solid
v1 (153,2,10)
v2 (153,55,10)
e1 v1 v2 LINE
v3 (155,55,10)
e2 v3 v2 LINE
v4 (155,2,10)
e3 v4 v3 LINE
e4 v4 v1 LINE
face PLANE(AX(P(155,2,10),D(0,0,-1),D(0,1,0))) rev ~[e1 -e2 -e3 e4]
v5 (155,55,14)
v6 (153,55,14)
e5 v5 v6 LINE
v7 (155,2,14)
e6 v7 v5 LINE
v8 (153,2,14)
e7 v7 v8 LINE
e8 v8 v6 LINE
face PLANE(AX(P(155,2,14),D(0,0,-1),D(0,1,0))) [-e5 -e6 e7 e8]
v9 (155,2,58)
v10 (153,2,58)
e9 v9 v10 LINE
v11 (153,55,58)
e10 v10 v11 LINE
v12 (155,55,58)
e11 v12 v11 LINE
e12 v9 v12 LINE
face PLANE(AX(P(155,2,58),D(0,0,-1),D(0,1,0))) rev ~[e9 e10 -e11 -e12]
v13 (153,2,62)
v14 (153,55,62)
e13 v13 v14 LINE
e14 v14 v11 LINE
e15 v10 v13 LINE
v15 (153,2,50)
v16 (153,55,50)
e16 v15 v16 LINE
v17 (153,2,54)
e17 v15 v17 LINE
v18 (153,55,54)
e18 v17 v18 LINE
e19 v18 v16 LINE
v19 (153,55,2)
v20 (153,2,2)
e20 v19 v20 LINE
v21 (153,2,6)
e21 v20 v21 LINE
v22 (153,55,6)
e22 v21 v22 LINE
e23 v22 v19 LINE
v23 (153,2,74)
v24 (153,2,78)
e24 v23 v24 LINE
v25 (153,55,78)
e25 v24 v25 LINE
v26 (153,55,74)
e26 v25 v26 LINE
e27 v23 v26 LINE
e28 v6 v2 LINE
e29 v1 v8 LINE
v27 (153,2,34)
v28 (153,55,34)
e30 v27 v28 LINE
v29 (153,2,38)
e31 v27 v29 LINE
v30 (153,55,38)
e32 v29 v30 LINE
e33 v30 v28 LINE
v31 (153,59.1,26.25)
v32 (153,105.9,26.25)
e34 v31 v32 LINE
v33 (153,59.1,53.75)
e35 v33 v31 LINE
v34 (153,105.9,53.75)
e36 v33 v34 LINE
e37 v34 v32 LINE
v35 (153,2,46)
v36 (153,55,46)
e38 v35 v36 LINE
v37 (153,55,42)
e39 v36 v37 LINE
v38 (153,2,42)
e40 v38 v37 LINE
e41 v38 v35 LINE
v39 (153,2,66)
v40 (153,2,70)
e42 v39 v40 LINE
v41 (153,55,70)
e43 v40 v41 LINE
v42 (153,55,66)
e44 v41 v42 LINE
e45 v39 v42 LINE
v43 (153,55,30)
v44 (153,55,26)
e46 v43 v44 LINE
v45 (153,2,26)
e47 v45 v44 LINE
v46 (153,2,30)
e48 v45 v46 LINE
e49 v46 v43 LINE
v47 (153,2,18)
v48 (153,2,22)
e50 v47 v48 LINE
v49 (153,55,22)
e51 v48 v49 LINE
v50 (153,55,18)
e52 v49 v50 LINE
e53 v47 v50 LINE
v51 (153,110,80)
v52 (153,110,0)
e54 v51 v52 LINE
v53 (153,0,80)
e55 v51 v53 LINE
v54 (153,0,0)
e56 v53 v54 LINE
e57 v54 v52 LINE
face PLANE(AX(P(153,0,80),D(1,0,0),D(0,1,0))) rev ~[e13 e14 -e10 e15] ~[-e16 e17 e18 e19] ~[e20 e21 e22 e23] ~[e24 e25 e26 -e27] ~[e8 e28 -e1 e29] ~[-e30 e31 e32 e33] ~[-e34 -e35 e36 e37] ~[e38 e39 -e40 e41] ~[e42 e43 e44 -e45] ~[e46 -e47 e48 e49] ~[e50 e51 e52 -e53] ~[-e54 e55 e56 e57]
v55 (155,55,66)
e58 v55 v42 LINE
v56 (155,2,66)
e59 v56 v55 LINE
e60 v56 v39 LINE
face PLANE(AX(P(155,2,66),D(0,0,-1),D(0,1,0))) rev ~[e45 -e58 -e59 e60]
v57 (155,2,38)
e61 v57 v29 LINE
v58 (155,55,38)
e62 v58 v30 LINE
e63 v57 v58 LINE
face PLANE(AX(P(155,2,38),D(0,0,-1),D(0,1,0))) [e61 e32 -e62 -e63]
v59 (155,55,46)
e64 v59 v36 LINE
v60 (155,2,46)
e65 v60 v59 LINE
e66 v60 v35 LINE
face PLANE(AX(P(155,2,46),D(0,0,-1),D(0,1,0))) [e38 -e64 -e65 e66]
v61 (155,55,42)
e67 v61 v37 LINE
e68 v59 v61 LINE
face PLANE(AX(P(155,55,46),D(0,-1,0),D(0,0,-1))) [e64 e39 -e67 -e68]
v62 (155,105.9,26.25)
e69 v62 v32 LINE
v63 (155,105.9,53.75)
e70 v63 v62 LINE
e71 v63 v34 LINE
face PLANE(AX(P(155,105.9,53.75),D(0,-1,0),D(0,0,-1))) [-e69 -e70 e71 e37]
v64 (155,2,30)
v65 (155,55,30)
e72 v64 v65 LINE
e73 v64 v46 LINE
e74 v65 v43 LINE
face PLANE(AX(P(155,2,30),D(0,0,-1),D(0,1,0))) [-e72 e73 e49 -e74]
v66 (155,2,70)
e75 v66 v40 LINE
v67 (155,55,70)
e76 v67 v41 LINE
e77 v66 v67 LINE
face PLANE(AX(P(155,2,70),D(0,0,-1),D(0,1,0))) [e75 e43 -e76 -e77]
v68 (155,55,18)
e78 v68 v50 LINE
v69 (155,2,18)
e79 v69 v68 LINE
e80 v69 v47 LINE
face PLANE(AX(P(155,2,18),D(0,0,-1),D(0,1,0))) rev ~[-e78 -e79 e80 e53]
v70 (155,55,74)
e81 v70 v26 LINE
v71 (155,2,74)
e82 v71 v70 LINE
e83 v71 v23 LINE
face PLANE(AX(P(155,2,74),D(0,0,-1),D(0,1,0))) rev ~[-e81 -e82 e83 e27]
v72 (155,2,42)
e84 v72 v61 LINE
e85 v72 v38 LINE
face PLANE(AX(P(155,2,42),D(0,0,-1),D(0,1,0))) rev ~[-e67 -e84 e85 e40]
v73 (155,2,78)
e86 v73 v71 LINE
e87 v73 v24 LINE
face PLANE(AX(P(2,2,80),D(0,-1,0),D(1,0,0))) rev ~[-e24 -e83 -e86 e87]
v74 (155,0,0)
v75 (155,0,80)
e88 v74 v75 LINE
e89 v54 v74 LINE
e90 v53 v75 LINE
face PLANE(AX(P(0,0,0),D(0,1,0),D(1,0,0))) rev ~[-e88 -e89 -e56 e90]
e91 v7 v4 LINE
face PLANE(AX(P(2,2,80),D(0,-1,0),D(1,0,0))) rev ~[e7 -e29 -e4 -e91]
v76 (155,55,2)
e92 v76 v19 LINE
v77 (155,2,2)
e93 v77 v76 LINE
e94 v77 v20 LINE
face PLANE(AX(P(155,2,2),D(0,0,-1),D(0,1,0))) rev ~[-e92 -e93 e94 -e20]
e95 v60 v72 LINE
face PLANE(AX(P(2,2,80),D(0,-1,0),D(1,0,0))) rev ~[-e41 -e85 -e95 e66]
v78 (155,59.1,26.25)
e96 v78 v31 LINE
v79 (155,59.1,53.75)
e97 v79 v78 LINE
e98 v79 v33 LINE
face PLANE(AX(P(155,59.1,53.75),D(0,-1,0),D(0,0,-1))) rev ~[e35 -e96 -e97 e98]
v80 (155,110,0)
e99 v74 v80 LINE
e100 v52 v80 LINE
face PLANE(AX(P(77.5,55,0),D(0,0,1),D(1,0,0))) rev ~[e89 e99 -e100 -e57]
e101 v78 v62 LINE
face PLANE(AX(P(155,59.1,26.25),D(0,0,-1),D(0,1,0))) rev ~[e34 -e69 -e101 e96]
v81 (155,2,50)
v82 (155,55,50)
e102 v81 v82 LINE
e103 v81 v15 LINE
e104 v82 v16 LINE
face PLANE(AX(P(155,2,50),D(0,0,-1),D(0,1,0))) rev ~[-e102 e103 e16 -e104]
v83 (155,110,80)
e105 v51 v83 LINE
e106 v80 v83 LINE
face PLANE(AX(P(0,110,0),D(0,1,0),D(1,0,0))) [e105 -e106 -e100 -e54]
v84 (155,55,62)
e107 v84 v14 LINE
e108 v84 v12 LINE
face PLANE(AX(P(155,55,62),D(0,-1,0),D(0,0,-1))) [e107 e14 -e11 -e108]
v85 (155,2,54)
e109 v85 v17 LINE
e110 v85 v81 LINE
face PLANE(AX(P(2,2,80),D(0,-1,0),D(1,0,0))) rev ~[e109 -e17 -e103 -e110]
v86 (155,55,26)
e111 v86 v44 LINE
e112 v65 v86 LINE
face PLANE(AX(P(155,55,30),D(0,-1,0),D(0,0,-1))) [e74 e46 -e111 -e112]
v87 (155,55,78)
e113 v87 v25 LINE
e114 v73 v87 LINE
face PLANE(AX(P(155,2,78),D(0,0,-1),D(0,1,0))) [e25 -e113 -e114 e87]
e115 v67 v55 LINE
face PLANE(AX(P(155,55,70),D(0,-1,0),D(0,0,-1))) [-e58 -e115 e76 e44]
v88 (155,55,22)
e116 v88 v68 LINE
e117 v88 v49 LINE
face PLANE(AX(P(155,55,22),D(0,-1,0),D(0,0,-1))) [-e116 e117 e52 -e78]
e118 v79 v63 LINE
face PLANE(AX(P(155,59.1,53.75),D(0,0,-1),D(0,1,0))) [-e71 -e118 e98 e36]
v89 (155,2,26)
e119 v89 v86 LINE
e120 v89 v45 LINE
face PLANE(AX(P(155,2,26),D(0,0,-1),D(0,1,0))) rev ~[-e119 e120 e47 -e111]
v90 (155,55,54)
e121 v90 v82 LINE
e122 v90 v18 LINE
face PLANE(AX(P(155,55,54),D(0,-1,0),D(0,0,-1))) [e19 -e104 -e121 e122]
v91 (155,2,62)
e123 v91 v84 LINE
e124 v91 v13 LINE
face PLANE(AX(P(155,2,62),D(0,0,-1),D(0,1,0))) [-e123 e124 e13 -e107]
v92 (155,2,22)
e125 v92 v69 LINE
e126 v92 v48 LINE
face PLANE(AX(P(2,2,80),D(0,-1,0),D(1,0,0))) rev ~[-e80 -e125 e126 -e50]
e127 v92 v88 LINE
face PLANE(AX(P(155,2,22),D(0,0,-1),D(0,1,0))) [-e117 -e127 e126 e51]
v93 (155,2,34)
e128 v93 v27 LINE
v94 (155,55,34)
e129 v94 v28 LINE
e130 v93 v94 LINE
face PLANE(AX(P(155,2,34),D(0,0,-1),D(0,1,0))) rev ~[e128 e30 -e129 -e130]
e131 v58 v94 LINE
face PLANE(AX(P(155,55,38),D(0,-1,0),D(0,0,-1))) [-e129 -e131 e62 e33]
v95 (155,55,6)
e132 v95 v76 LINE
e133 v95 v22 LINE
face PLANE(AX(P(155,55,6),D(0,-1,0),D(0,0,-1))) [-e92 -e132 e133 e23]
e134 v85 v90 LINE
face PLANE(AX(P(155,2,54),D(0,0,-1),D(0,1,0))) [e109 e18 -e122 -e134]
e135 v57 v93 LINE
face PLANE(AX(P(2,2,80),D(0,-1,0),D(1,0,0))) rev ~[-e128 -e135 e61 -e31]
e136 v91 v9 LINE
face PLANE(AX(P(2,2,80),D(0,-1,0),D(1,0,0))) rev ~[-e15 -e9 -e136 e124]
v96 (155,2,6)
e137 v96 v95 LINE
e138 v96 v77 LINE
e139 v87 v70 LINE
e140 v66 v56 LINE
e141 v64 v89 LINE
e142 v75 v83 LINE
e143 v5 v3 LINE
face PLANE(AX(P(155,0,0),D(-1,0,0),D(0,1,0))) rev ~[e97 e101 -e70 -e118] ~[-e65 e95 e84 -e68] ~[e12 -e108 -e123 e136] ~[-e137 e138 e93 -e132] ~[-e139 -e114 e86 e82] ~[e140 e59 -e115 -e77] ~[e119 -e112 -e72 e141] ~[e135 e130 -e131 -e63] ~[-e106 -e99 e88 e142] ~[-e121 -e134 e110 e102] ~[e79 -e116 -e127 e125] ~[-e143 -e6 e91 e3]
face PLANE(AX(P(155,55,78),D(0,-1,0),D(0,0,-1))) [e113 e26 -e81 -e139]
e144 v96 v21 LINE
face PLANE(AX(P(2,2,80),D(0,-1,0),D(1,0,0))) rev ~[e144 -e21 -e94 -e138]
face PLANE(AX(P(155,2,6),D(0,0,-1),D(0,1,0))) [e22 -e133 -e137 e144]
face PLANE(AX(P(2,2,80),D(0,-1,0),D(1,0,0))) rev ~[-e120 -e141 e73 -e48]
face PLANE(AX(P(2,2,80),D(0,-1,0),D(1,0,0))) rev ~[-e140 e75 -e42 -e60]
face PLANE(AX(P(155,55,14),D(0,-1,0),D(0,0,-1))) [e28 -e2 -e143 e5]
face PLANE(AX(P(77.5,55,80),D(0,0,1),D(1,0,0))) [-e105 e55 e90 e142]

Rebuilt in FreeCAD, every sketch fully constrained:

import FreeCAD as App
import Part
import Sketcher
from FreeCAD import Vector
Q = App.Units.Quantity


def add_polygon(sketch, points):
    """Adds a closed chain of lines whose ends are joined by coincident constraints."""
    first, n = sketch.GeometryCount, len(points)
    for a, b in zip(points, points[1:] + points[:1]):
        sketch.addGeometry(Part.LineSegment(App.Vector(*a, 0), App.Vector(*b, 0)), False)
    for i in range(n):
        sketch.addConstraint(Sketcher.Constraint("Coincident", first + i, 2, first + (i + 1) % n, 1))

doc = App.newDocument("Part")
body = doc.addObject("PartDesign::Body", "Body")

sketch1 = body.newObject("Sketcher::SketchObject", "Sketch")
sketch1.AttachmentSupport = (doc.getObject("XY_Plane"), [""])
sketch1.MapMode = "FlatFace"
add_polygon(sketch1, [(0, 110), (0, 0), (155, 0), (155, 110)])
sketch1.addConstraint([
    Sketcher.Constraint("Vertical", 0),
    Sketcher.Constraint("Horizontal", 1),
    Sketcher.Constraint("Vertical", 2),
    Sketcher.Constraint("Horizontal", 3),
    Sketcher.Constraint("Coincident", 0, 2, -1, 1),
    Sketcher.Constraint("DistanceX", 1, 1, 1, 2, Q("155 mm")),
    Sketcher.Constraint("DistanceY", 0, 2, 0, 1, Q("110 mm")),
])
pad1 = body.newObject("PartDesign::Pad", "Pad")
pad1.Profile = sketch1
pad1.Length = 80

sketch2 = body.newObject("Sketcher::SketchObject", "Sketch001")
sketch2.AttachmentSupport = (doc.getObject("XY_Plane"), [""])
sketch2.MapMode = "FlatFace"
sketch2.AttachmentOffset = App.Placement(Vector(0, 0, 80), App.Rotation())
add_polygon(sketch2, [(2, 108), (2, 2), (153, 2), (153, 108)])
sketch2.addConstraint([
    Sketcher.Constraint("Vertical", 0),
    Sketcher.Constraint("Horizontal", 1),
    Sketcher.Constraint("Vertical", 2),
    Sketcher.Constraint("Horizontal", 3),
    Sketcher.Constraint("DistanceX", 1, 1, 1, 2, Q("151 mm")),
    Sketcher.Constraint("DistanceY", 0, 2, 0, 1, Q("106 mm")),
    Sketcher.Constraint("DistanceX", -1, 1, 0, 2, Q("2 mm")),
    Sketcher.Constraint("DistanceY", -1, 1, 0, 2, Q("2 mm")),
])
pocket1 = body.newObject("PartDesign::Pocket", "Pocket")
pocket1.Profile = sketch2
pocket1.Length = 78

sketch3 = body.newObject("Sketcher::SketchObject", "Sketch002")
sketch3.AttachmentSupport = (doc.getObject("XY_Plane"), [""])
sketch3.MapMode = "FlatFace"
sketch3.AttachmentOffset = App.Placement(Vector(0, 0, 2), App.Rotation())
sketch3.addGeometry([
    Part.Circle(Vector(145, 100.5, 0), Vector(0, 0, 1), 2.5),
    Part.Circle(Vector(145, 9.5, 0), Vector(0, 0, 1), 2.5),
    Part.Circle(Vector(10, 9.5, 0), Vector(0, 0, 1), 2.5),
    Part.Circle(Vector(10, 100.5, 0), Vector(0, 0, 1), 2.5),
], False)
sketch3.addConstraint([
    Sketcher.Constraint("Equal", 0, 1),
    Sketcher.Constraint("Equal", 1, 2),
    Sketcher.Constraint("Equal", 2, 3),
    Sketcher.Constraint("Horizontal", 1, 3, 2, 3),
    Sketcher.Constraint("Horizontal", 0, 3, 3, 3),
    Sketcher.Constraint("Vertical", 0, 3, 1, 3),
    Sketcher.Constraint("Vertical", 2, 3, 3, 3),
    Sketcher.Constraint("Diameter", 0, Q("5 mm")),
    Sketcher.Constraint("DistanceX", -1, 1, 0, 3, Q("145 mm")),
    Sketcher.Constraint("DistanceX", -1, 1, 2, 3, Q("10 mm")),
    Sketcher.Constraint("DistanceY", 1, 3, 0, 3, Q("91 mm")),
    Sketcher.Constraint("DistanceY", -1, 1, 0, 3, Q("100.5 mm")),
])
pocket2 = body.newObject("PartDesign::Pocket", "Pocket001")
pocket2.Profile = sketch3
pocket2.Length = 2

sketch4 = body.newObject("Sketcher::SketchObject", "Sketch003")
sketch4.AttachmentSupport = (doc.getObject("XZ_Plane"), [""])
sketch4.MapMode = "FlatFace"
sketch4.AttachmentOffset = App.Placement(Vector(0, 0, -110), App.Rotation())
sketch4.addGeometry([
    Part.Circle(Vector(44.48, 20.144504, 0), Vector(0, 0, 1), 1.6),
    Part.Circle(Vector(95.28, 17.14, 0), Vector(0, 0, 1), 1.6),
    Part.Circle(Vector(95.28, 62.86, 0), Vector(0, 0, 1), 1.6),
    Part.Circle(Vector(44.48, 47.62, 0), Vector(0, 0, 1), 1.6),
], False)
sketch4.addConstraint([
    Sketcher.Constraint("Equal", 0, 1),
    Sketcher.Constraint("Equal", 1, 2),
    Sketcher.Constraint("Equal", 2, 3),
    Sketcher.Constraint("Vertical", 1, 3, 2, 3),
    Sketcher.Constraint("Vertical", 0, 3, 3, 3),
    Sketcher.Constraint("Diameter", 0, Q("3.2 mm")),
    Sketcher.Constraint("DistanceX", 0, 3, 1, 3, Q("50.8 mm")),
    Sketcher.Constraint("DistanceX", -1, 1, 0, 3, Q("44.48 mm")),
    Sketcher.Constraint("DistanceY", -1, 1, 1, 3, Q("17.14 mm")),
    Sketcher.Constraint("DistanceY", -1, 1, 2, 3, Q("62.86 mm")),
    Sketcher.Constraint("DistanceY", -1, 1, 3, 3, Q("47.62 mm")),
    Sketcher.Constraint("DistanceY", -1, 1, 0, 3, Q("20.144504 mm")),
])
pocket3 = body.newObject("PartDesign::Pocket", "Pocket002")
pocket3.Profile = sketch4
pocket3.Length = 2
pocket3.Reversed = True

sketch5 = body.newObject("Sketcher::SketchObject", "Sketch004")
sketch5.AttachmentSupport = (doc.getObject("YZ_Plane"), [""])
sketch5.MapMode = "FlatFace"
sketch5.AttachmentOffset = App.Placement(Vector(0, 0, 155), App.Rotation())
add_polygon(sketch5, [(105.9, 53.75), (59.1, 53.75), (59.1, 26.25), (105.9, 26.25)])
sketch5.addConstraint([
    Sketcher.Constraint("Horizontal", 0),
    Sketcher.Constraint("Vertical", 1),
    Sketcher.Constraint("Horizontal", 2),
    Sketcher.Constraint("Vertical", 3),
    Sketcher.Constraint("DistanceX", 0, 2, 0, 1, Q("46.8 mm")),
    Sketcher.Constraint("DistanceY", 1, 2, 1, 1, Q("27.5 mm")),
    Sketcher.Constraint("DistanceX", -1, 1, 0, 2, Q("59.1 mm")),
    Sketcher.Constraint("DistanceY", -1, 1, 0, 2, Q("53.75 mm")),
])
pocket4 = body.newObject("PartDesign::Pocket", "Pocket003")
pocket4.Profile = sketch5
pocket4.Length = 2

sketch6 = body.newObject("Sketcher::SketchObject", "Sketch005")
sketch6.AttachmentSupport = (doc.getObject("YZ_Plane"), [""])
sketch6.MapMode = "FlatFace"
sketch6.AttachmentOffset = App.Placement(Vector(0, 0, 155), App.Rotation())
add_polygon(sketch6, [(55, 70), (2, 70), (2, 66), (55, 66)])
add_polygon(sketch6, [(55, 78), (2, 78), (2, 74), (55, 74)])
add_polygon(sketch6, [(55, 62), (2, 62), (2, 58), (55, 58)])
add_polygon(sketch6, [(55, 54), (2, 54), (2, 50), (55, 50)])
add_polygon(sketch6, [(55, 46), (2, 46), (2, 42), (55, 42)])
add_polygon(sketch6, [(55, 38), (2, 38), (2, 34), (55, 34)])
add_polygon(sketch6, [(55, 30), (2, 30), (2, 26), (55, 26)])
add_polygon(sketch6, [(55, 22), (2, 22), (2, 18), (55, 18)])
add_polygon(sketch6, [(55, 14), (2, 14), (2, 10), (55, 10)])
add_polygon(sketch6, [(55, 6), (2, 6), (2, 2), (55, 2)])
sketch6.addConstraint([
    Sketcher.Constraint("Horizontal", 0),
    Sketcher.Constraint("Vertical", 1),
    Sketcher.Constraint("Horizontal", 2),
    Sketcher.Constraint("Vertical", 3),
    Sketcher.Constraint("Horizontal", 4),
    Sketcher.Constraint("Vertical", 5),
    Sketcher.Constraint("Horizontal", 6),
    Sketcher.Constraint("Vertical", 7),
    Sketcher.Constraint("Horizontal", 8),
    Sketcher.Constraint("Vertical", 9),
    Sketcher.Constraint("Horizontal", 10),
    Sketcher.Constraint("Vertical", 11),
    Sketcher.Constraint("Horizontal", 12),
    Sketcher.Constraint("Vertical", 13),
    Sketcher.Constraint("Horizontal", 14),
    Sketcher.Constraint("Vertical", 15),
    Sketcher.Constraint("Horizontal", 16),
    Sketcher.Constraint("Vertical", 17),
    Sketcher.Constraint("Horizontal", 18),
    Sketcher.Constraint("Vertical", 19),
    Sketcher.Constraint("Horizontal", 20),
    Sketcher.Constraint("Vertical", 21),
    Sketcher.Constraint("Horizontal", 22),
    Sketcher.Constraint("Vertical", 23),
    Sketcher.Constraint("Horizontal", 24),
    Sketcher.Constraint("Vertical", 25),
    Sketcher.Constraint("Horizontal", 26),
    Sketcher.Constraint("Vertical", 27),
    Sketcher.Constraint("Horizontal", 28),
    Sketcher.Constraint("Vertical", 29),
    Sketcher.Constraint("Horizontal", 30),
    Sketcher.Constraint("Vertical", 31),
    Sketcher.Constraint("Horizontal", 32),
    Sketcher.Constraint("Vertical", 33),
    Sketcher.Constraint("Horizontal", 34),
    Sketcher.Constraint("Vertical", 35),
    Sketcher.Constraint("Horizontal", 36),
    Sketcher.Constraint("Vertical", 37),
    Sketcher.Constraint("Horizontal", 38),
    Sketcher.Constraint("Vertical", 39),
    Sketcher.Constraint("Vertical", 1, 2, 4, 2),
    Sketcher.Constraint("Vertical", 3, 2, 6, 2),
    Sketcher.Constraint("Vertical", 5, 2, 8, 2),
    Sketcher.Constraint("Vertical", 7, 2, 10, 2),
    Sketcher.Constraint("Vertical", 9, 2, 12, 2),
    Sketcher.Constraint("Vertical", 11, 2, 14, 2),
    Sketcher.Constraint("Vertical", 13, 2, 16, 2),
    Sketcher.Constraint("Vertical", 15, 2, 18, 2),
    Sketcher.Constraint("Vertical", 17, 2, 20, 2),
    Sketcher.Constraint("Vertical", 19, 2, 22, 2),
    Sketcher.Constraint("Vertical", 21, 2, 24, 2),
    Sketcher.Constraint("Vertical", 23, 2, 26, 2),
    Sketcher.Constraint("Vertical", 25, 2, 28, 2),
    Sketcher.Constraint("Vertical", 27, 2, 30, 2),
    Sketcher.Constraint("Vertical", 29, 2, 32, 2),
    Sketcher.Constraint("Vertical", 31, 2, 34, 2),
    Sketcher.Constraint("Vertical", 33, 2, 36, 2),
    Sketcher.Constraint("Vertical", 35, 2, 38, 2),
    Sketcher.Constraint("Equal", 3, 5),
    Sketcher.Constraint("Equal", 7, 9),
    Sketcher.Constraint("Equal", 11, 13),
    Sketcher.Constraint("Equal", 15, 17),
    Sketcher.Constraint("Equal", 19, 21),
    Sketcher.Constraint("Equal", 23, 25),
    Sketcher.Constraint("Equal", 27, 29),
    Sketcher.Constraint("Equal", 31, 33),
    Sketcher.Constraint("Equal", 35, 37),
    Sketcher.Constraint("DistanceX", 0, 2, 0, 1, Q("53 mm")),
    Sketcher.Constraint("DistanceY", 1, 2, 1, 1, Q("4 mm")),
    Sketcher.Constraint("DistanceX", -1, 1, 0, 2, Q("2 mm")),
    Sketcher.Constraint("DistanceY", -1, 1, 0, 2, Q("70 mm")),
    Sketcher.Constraint("DistanceY", -1, 1, 4, 2, Q("78 mm")),
    Sketcher.Constraint("DistanceY", -1, 1, 8, 2, Q("62 mm")),
    Sketcher.Constraint("DistanceY", -1, 1, 12, 2, Q("54 mm")),
    Sketcher.Constraint("DistanceY", -1, 1, 16, 2, Q("46 mm")),
    Sketcher.Constraint("DistanceY", -1, 1, 20, 2, Q("38 mm")),
    Sketcher.Constraint("DistanceY", -1, 1, 24, 2, Q("30 mm")),
    Sketcher.Constraint("DistanceY", -1, 1, 28, 2, Q("22 mm")),
    Sketcher.Constraint("DistanceY", -1, 1, 32, 2, Q("14 mm")),
    Sketcher.Constraint("DistanceY", -1, 1, 36, 2, Q("6 mm")),
])
pocket5 = body.newObject("PartDesign::Pocket", "Pocket004")
pocket5.Profile = sketch6
pocket5.Length = 2

sketch7 = body.newObject("Sketcher::SketchObject", "Sketch006")
sketch7.AttachmentSupport = (doc.getObject("XZ_Plane"), [""])
sketch7.MapMode = "FlatFace"
sketch7.AttachmentOffset = App.Placement(Vector(0, 0, -110), App.Rotation())
add_polygon(sketch7, [(113, 12), (113, 26), (127, 26), (127, 12)])
sketch7.addConstraint([
    Sketcher.Constraint("Vertical", 0),
    Sketcher.Constraint("Horizontal", 1),
    Sketcher.Constraint("Vertical", 2),
    Sketcher.Constraint("Horizontal", 3),
    Sketcher.Constraint("Equal", 3, 0),
    Sketcher.Constraint("DistanceX", 1, 1, 1, 2, Q("14 mm")),
    Sketcher.Constraint("DistanceX", -1, 1, 0, 2, Q("113 mm")),
    Sketcher.Constraint("DistanceY", -1, 1, 0, 2, Q("26 mm")),
])
pocket6 = body.newObject("PartDesign::Pocket", "Pocket005")
pocket6.Profile = sketch7
pocket6.Length = 2
pocket6.Reversed = True

sketch8 = body.newObject("Sketcher::SketchObject", "Sketch007")
sketch8.AttachmentSupport = (doc.getObject("YZ_Plane"), [""])
sketch8.MapMode = "FlatFace"
add_polygon(sketch8, [(90.6, 45.4), (19.4, 45.4), (19.4, 70.6), (90.6, 70.6)])
sketch8.addGeometry(Part.Circle(Vector(92.5, 42.5, 0), Vector(0, 0, 1), 1.25), False)
sketch8.addGeometry(Part.Circle(Vector(92.5, 73.5, 0), Vector(0, 0, 1), 1.25), False)
sketch8.addGeometry(Part.Circle(Vector(17.5, 42.5, 0), Vector(0, 0, 1), 1.25), False)
sketch8.addGeometry(Part.Circle(Vector(17.5, 73.5, 0), Vector(0, 0, 1), 1.25), False)
sketch8.addConstraint([
    Sketcher.Constraint("Horizontal", 0),
    Sketcher.Constraint("Vertical", 1),
    Sketcher.Constraint("Horizontal", 2),
    Sketcher.Constraint("Vertical", 3),
    Sketcher.Constraint("Equal", 4, 5),
    Sketcher.Constraint("Equal", 5, 6),
    Sketcher.Constraint("Equal", 6, 7),
    Sketcher.Constraint("Horizontal", 4, 3, 6, 3),
    Sketcher.Constraint("Horizontal", 5, 3, 7, 3),
    Sketcher.Constraint("Vertical", 4, 3, 5, 3),
    Sketcher.Constraint("Vertical", 6, 3, 7, 3),
    Sketcher.Constraint("Diameter", 4, Q("2.5 mm")),
    Sketcher.Constraint("DistanceX", 0, 2, 0, 1, Q("71.2 mm")),
    Sketcher.Constraint("DistanceY", 1, 1, 1, 2, Q("25.2 mm")),
    Sketcher.Constraint("DistanceY", 4, 3, 5, 3, Q("31 mm")),
    Sketcher.Constraint("DistanceX", 6, 3, 4, 3, Q("75 mm")),
    Sketcher.Constraint("DistanceX", -1, 1, 4, 3, Q("92.5 mm")),
    Sketcher.Constraint("DistanceY", -1, 1, 4, 3, Q("42.5 mm")),
    Sketcher.Constraint("DistanceX", -1, 1, 0, 2, Q("19.4 mm")),
    Sketcher.Constraint("DistanceY", -1, 1, 0, 2, Q("45.4 mm")),
])
pocket7 = body.newObject("PartDesign::Pocket", "Pocket006")
pocket7.Profile = sketch8
pocket7.Length = 2
pocket7.Reversed = True

sketch9 = body.newObject("Sketcher::SketchObject", "Sketch008")
sketch9.AttachmentSupport = (doc.getObject("YZ_Plane"), [""])
sketch9.MapMode = "FlatFace"
sketch9.addGeometry([
    Part.Circle(Vector(55, 20, 0), Vector(0, 0, 1), 2.5),
    Part.Circle(Vector(40, 20, 0), Vector(0, 0, 1), 2.5),
    Part.Circle(Vector(25, 20, 0), Vector(0, 0, 1), 2.5),
    Part.Circle(Vector(82.5, 20, 0), Vector(0, 0, 1), 4.5),
], False)
sketch9.addConstraint([
    Sketcher.Constraint("Equal", 0, 1),
    Sketcher.Constraint("Equal", 1, 2),
    Sketcher.Constraint("Horizontal", 0, 3, 1, 3),
    Sketcher.Constraint("Horizontal", 1, 3, 2, 3),
    Sketcher.Constraint("Horizontal", 2, 3, 3, 3),
    Sketcher.Constraint("Diameter", 0, Q("5 mm")),
    Sketcher.Constraint("Diameter", 3, Q("9 mm")),
    Sketcher.Constraint("DistanceX", -1, 1, 0, 3, Q("55 mm")),
    Sketcher.Constraint("DistanceY", -1, 1, 0, 3, Q("20 mm")),
    Sketcher.Constraint("DistanceX", -1, 1, 1, 3, Q("40 mm")),
    Sketcher.Constraint("DistanceX", -1, 1, 2, 3, Q("25 mm")),
    Sketcher.Constraint("DistanceX", -1, 1, 3, 3, Q("82.5 mm")),
])
pocket8 = body.newObject("PartDesign::Pocket", "Pocket007")
pocket8.Profile = sketch9
pocket8.Length = 2
pocket8.Reversed = True

sketch10 = body.newObject("Sketcher::SketchObject", "Sketch009")
sketch10.AttachmentSupport = (doc.getObject("XY_Plane"), [""])
sketch10.MapMode = "FlatFace"
sketch10.AttachmentOffset = App.Placement(Vector(0, 0, 80), App.Rotation())
add_polygon(sketch10, [(0, 110), (0, 0), (153, 0), (153, 110)])
sketch10.addConstraint([
    Sketcher.Constraint("Vertical", 0),
    Sketcher.Constraint("Horizontal", 1),
    Sketcher.Constraint("Vertical", 2),
    Sketcher.Constraint("Horizontal", 3),
    Sketcher.Constraint("Coincident", 0, 2, -1, 1),
    Sketcher.Constraint("DistanceX", 1, 1, 1, 2, Q("153 mm")),
    Sketcher.Constraint("DistanceY", 0, 2, 0, 1, Q("110 mm")),
])
pocket9 = body.newObject("PartDesign::Pocket", "Pocket008")
pocket9.Profile = sketch10
pocket9.Length = 80

doc.recompute()
